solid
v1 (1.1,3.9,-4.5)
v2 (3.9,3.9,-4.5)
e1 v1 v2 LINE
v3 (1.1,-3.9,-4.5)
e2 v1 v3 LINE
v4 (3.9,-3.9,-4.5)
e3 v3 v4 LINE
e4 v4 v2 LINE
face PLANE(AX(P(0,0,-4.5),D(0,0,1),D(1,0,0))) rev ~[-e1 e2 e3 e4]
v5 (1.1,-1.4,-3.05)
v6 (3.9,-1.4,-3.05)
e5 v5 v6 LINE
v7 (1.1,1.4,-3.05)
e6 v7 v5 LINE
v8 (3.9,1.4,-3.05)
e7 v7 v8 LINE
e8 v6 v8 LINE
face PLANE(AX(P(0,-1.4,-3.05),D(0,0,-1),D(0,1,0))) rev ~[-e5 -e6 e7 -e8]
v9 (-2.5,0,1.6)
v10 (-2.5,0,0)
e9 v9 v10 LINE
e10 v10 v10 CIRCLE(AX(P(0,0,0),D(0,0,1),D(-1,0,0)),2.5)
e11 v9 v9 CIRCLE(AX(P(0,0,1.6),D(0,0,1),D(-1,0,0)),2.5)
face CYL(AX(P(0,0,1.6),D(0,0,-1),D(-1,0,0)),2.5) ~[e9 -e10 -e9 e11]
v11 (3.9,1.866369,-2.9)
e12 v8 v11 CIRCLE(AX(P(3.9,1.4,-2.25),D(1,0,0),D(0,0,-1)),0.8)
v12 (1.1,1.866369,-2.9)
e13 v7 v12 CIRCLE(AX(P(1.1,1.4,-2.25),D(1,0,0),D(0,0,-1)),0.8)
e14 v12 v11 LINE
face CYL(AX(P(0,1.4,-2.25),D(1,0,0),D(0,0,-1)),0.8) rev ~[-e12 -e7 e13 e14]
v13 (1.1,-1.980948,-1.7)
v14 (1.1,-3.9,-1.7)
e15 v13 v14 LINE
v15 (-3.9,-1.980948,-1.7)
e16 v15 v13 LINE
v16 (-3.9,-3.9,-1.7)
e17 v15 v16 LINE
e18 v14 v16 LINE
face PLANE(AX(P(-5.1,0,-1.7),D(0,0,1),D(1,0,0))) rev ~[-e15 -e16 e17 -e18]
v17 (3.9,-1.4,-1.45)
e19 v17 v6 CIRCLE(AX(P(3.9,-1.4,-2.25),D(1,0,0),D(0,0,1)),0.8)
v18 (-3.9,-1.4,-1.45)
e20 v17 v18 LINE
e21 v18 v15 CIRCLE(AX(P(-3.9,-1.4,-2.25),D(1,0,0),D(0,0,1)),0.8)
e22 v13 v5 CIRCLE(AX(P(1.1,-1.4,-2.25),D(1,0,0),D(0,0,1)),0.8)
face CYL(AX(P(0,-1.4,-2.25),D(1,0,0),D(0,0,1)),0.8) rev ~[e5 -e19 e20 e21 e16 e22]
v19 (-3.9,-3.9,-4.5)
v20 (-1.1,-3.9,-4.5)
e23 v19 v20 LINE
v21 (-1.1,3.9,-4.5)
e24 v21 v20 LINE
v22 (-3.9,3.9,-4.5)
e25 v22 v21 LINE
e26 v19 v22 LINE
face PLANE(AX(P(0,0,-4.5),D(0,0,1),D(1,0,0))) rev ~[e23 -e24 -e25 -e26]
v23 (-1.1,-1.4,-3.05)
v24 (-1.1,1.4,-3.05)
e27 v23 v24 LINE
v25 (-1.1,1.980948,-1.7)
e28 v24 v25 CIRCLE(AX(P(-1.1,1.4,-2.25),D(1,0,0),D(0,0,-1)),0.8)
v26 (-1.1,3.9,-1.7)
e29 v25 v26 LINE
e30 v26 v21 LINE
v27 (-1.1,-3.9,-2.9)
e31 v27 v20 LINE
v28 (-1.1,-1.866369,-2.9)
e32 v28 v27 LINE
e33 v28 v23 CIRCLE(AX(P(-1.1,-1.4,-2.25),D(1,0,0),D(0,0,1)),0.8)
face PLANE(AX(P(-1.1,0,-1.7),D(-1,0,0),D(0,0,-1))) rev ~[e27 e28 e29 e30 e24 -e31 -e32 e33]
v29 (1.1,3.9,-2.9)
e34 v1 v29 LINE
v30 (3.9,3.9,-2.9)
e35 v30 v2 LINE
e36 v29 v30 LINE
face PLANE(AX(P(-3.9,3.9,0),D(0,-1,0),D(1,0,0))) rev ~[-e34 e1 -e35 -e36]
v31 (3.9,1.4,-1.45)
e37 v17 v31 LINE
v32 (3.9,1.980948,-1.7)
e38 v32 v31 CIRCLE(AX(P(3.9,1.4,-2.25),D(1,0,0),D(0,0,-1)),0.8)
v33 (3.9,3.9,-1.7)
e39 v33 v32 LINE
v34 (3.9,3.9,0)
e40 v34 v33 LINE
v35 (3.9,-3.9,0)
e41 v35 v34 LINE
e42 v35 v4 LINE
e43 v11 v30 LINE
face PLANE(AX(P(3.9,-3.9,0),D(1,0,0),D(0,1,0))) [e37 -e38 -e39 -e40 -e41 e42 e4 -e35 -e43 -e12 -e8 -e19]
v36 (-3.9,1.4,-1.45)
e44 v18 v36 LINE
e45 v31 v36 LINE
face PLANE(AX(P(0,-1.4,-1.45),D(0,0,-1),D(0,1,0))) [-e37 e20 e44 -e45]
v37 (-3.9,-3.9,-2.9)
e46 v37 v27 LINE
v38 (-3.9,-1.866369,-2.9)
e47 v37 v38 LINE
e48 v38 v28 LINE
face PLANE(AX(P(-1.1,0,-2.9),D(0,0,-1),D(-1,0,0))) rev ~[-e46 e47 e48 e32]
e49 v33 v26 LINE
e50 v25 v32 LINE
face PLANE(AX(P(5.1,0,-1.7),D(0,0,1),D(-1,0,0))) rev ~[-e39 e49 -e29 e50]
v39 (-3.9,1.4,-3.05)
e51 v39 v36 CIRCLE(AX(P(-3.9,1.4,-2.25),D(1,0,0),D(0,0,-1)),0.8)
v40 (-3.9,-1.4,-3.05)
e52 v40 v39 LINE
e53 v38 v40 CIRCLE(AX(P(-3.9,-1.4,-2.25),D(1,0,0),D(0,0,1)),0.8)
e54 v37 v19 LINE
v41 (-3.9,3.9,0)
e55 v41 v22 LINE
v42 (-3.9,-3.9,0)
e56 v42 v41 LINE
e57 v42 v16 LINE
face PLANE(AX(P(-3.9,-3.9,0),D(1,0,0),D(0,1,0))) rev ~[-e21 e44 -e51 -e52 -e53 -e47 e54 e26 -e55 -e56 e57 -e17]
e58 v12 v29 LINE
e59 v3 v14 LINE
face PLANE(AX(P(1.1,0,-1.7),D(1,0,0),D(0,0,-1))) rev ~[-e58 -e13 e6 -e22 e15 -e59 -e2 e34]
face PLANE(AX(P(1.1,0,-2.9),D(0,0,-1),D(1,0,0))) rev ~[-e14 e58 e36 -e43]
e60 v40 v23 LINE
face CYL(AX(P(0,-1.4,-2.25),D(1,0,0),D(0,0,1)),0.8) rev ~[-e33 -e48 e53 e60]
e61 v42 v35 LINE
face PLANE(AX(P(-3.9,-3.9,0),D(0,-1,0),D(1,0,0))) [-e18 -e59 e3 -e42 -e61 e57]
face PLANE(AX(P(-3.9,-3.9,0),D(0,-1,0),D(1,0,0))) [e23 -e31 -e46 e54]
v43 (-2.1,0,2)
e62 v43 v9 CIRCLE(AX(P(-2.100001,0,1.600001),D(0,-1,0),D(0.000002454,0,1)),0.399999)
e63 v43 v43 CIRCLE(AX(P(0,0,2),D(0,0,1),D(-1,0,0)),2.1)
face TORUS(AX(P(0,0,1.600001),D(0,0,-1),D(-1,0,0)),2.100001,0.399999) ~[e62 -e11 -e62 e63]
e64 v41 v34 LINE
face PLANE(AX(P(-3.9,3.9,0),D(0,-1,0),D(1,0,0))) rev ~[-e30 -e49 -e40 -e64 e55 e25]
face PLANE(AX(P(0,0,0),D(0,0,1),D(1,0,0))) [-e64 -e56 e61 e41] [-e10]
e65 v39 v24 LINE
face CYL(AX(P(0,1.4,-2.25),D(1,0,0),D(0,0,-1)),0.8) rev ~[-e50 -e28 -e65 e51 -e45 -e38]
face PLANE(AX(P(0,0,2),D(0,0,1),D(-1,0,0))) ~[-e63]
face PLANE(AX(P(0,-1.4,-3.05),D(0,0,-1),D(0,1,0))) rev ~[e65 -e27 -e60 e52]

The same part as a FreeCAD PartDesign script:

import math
import FreeCAD as App
import Part
import Sketcher

V = App.Vector

doc = App.newDocument("Part")
body = doc.addObject("PartDesign::Body", "Body")

sketch1 = doc.addObject("Sketcher::SketchObject", "Sketch")
body.addObject(sketch1)
sketch1.AttachmentSupport = (doc.XZ_Plane, [""])
sketch1.MapMode = "FlatFace"
sketch1.addGeometry([
    Part.LineSegment(V(0, 0, 0), V(0, 2, 0)),
    Part.LineSegment(V(0, 2, 0), V(-2.1, 2, 0)),
    Part.ArcOfCircle(Part.Circle(V(-2.1, 1.6, 0), V(0, 0, 1), 0.4), math.radians(90), math.radians(180)),
    Part.LineSegment(V(-2.5, 1.6, 0), V(-2.5, 0, 0)),
    Part.LineSegment(V(-2.5, 0, 0), V(0, 0, 0)),
], False)
sketch1.addConstraint([
    Sketcher.Constraint("Coincident", 0, 2, 1, 1),
    Sketcher.Constraint("Coincident", 1, 2, 2, 1),
    Sketcher.Constraint("Coincident", 2, 2, 3, 1),
    Sketcher.Constraint("Coincident", 3, 2, 4, 1),
    Sketcher.Constraint("Coincident", 4, 2, 0, 1),
    Sketcher.Constraint("Vertical", 0),
    Sketcher.Constraint("Horizontal", 1),
    Sketcher.Constraint("Vertical", 3),
    Sketcher.Constraint("Horizontal", 4),
    Sketcher.Constraint("Coincident", 4, 2, -1, 1),
    Sketcher.Constraint("Vertical", 2, 3, 1, 2),
    Sketcher.Constraint("Radius", 2, 0.399999),
    Sketcher.Constraint("DistanceY", 0, 1, 0, 2, 2.0),
    Sketcher.Constraint("DistanceX", 1, 2, 1, 1, 2.1),
    Sketcher.Constraint("DistanceY", 3, 2, 3, 1, 1.6),
])
revolution = doc.addObject("PartDesign::Revolution", "Revolution")
body.addObject(revolution)
revolution.Profile = sketch1
revolution.ReferenceAxis = (sketch1, ["V_Axis"])
revolution.Angle = 360

sketch2 = doc.addObject("Sketcher::SketchObject", "Sketch001")
body.addObject(sketch2)
sketch2.AttachmentSupport = (doc.XY_Plane, [""])
sketch2.MapMode = "FlatFace"
sketch2.addGeometry([
    Part.LineSegment(V(-4, 4, 0), V(-4, -4, 0)),
    Part.LineSegment(V(-4, -4, 0), V(4, -4, 0)),
    Part.LineSegment(V(4, -4, 0), V(4, 4, 0)),
    Part.LineSegment(V(4, 4, 0), V(-4, 4, 0)),
], False)
sketch2.addConstraint([
    Sketcher.Constraint("Coincident", 0, 2, 1, 1),
    Sketcher.Constraint("Coincident", 1, 2, 2, 1),
    Sketcher.Constraint("Coincident", 2, 2, 3, 1),
    Sketcher.Constraint("Coincident", 3, 2, 0, 1),
    Sketcher.Constraint("Vertical", 0),
    Sketcher.Constraint("Horizontal", 1),
    Sketcher.Constraint("Vertical", 2),
    Sketcher.Constraint("Horizontal", 3),
    Sketcher.Constraint("Symmetric", 0, 2, 2, 2, -1, 1),
    Sketcher.Constraint("Equal", 3, 0),
    Sketcher.Constraint("DistanceX", 1, 1, 1, 2, 7.8),
])
pad1 = doc.addObject("PartDesign::Pad", "Pad")
body.addObject(pad1)
pad1.Profile = sketch2
pad1.Length = 4.5
pad1.Reversed = True

sketch3 = doc.addObject("Sketcher::SketchObject", "Sketch002")
body.addObject(sketch3)
sketch3.AttachmentSupport = (doc.YZ_Plane, [""])
sketch3.MapMode = "FlatFace"
sketch3.addGeometry([
    Part.ArcOfCircle(Part.Circle(V(-1.4, -2.2, 0), V(0, 0, 1), 0.8), math.radians(90), math.radians(270)),
    Part.LineSegment(V(-1.4, -3, 0), V(1.4, -3, 0)),
    Part.ArcOfCircle(Part.Circle(V(1.4, -2.2, 0), V(0, 0, 1), 0.8), math.radians(-90), math.radians(90)),
    Part.LineSegment(V(1.4, -1.4, 0), V(-1.4, -1.4, 0)),
], False)
sketch3.addConstraint([
    Sketcher.Constraint("Tangent", 0, 2, 1, 1),
    Sketcher.Constraint("Tangent", 1, 2, 2, 1),
    Sketcher.Constraint("Tangent", 2, 2, 3, 1),
    Sketcher.Constraint("Tangent", 3, 2, 0, 1),
    Sketcher.Constraint("Horizontal", 1),
    Sketcher.Constraint("Horizontal", 3),
    Sketcher.Constraint("Radius", 0, 0.8),
    Sketcher.Constraint("DistanceX", 1, 1, 1, 2, 2.8),
    Sketcher.Constraint("DistanceX", 0, 3, -1, 1, 1.4),
    Sketcher.Constraint("DistanceY", 0, 3, -1, 1, 2.25),
])
pocket1 = doc.addObject("PartDesign::Pocket", "Pocket")
body.addObject(pocket1)
pocket1.Profile = sketch3
pocket1.Length = 10
pocket1.Midplane = True

sketch4 = doc.addObject("Sketcher::SketchObject", "Sketch003")
body.addObject(sketch4)
sketch4.AttachmentSupport = (doc.XZ_Plane, [""])
sketch4.MapMode = "FlatFace"
sketch4.addGeometry([
    Part.LineSegment(V(-1.1, -5.9, 0), V(1.1, -5.9, 0)),
    Part.LineSegment(V(1.1, -5.9, 0), V(1.1, -1.7, 0)),
    Part.LineSegment(V(1.1, -1.7, 0), V(-5.1, -1.7, 0)),
    Part.LineSegment(V(-5.1, -1.7, 0), V(-5.1, -2.9, 0)),
    Part.LineSegment(V(-5.1, -2.9, 0), V(-1.1, -2.9, 0)),
    Part.LineSegment(V(-1.1, -2.9, 0), V(-1.1, -5.9, 0)),
], False)
sketch4.addConstraint([
    Sketcher.Constraint("Coincident", 0, 2, 1, 1),
    Sketcher.Constraint("Coincident", 1, 2, 2, 1),
    Sketcher.Constraint("Coincident", 2, 2, 3, 1),
    Sketcher.Constraint("Coincident", 3, 2, 4, 1),
    Sketcher.Constraint("Coincident", 4, 2, 5, 1),
    Sketcher.Constraint("Coincident", 5, 2, 0, 1),
    Sketcher.Constraint("Horizontal", 0),
    Sketcher.Constraint("Vertical", 1),
    Sketcher.Constraint("Horizontal", 2),
    Sketcher.Constraint("Vertical", 3),
    Sketcher.Constraint("Horizontal", 4),
    Sketcher.Constraint("Vertical", 5),
    Sketcher.Constraint("DistanceX", 4, 1, 4, 2, 4.0),
    Sketcher.Constraint("DistanceY", 5, 2, 5, 1, 3.0),
    Sketcher.Constraint("DistanceX", 0, 1, 0, 2, 2.2),
    Sketcher.Constraint("DistanceY", 1, 1, 1, 2, 4.2),
    Sketcher.Constraint("DistanceX", -1, 1, 0, 2, 1.1),
    Sketcher.Constraint("DistanceY", 0, 2, -1, 1, 5.9),
])
pocket2 = doc.addObject("PartDesign::Pocket", "Pocket001")
body.addObject(pocket2)
pocket2.Profile = sketch4
pocket2.Length = 5
pocket2.Reversed = True

sketch5 = doc.addObject("Sketcher::SketchObject", "Sketch004")
body.addObject(sketch5)
sketch5.AttachmentSupport = (doc.XZ_Plane, [""])
sketch5.MapMode = "FlatFace"
sketch5.addGeometry([
    Part.LineSegment(V(-1.1, -1.7, 0), V(-1.1, -6.7, 0)),
    Part.LineSegment(V(-1.1, -6.7, 0), V(1.1, -6.7, 0)),
    Part.LineSegment(V(1.1, -6.7, 0), V(1.1, -2.9, 0)),
    Part.LineSegment(V(1.1, -2.9, 0), V(5.1, -2.9, 0)),
    Part.LineSegment(V(5.1, -2.9, 0), V(5.1, -1.7, 0)),
    Part.LineSegment(V(5.1, -1.7, 0), V(-1.1, -1.7, 0)),
], False)
sketch5.addConstraint([
    Sketcher.Constraint("Coincident", 0, 2, 1, 1),
    Sketcher.Constraint("Coincident", 1, 2, 2, 1),
    Sketcher.Constraint("Coincident", 2, 2, 3, 1),
    Sketcher.Constraint("Coincident", 3, 2, 4, 1),
    Sketcher.Constraint("Coincident", 4, 2, 5, 1),
    Sketcher.Constraint("Coincident", 5, 2, 0, 1),
    Sketcher.Constraint("Vertical", 0),
    Sketcher.Constraint("Horizontal", 1),
    Sketcher.Constraint("Vertical", 2),
    Sketcher.Constraint("Horizontal", 3),
    Sketcher.Constraint("Vertical", 4),
    Sketcher.Constraint("Horizontal", 5),
    Sketcher.Constraint("DistanceX", 3, 1, 3, 2, 4.0),
    Sketcher.Constraint("DistanceY", 0, 2, 0, 1, 5.0),
    Sketcher.Constraint("DistanceX", 1, 1, 1, 2, 2.2),
    Sketcher.Constraint("DistanceY", 2, 1, 2, 2, 3.8),
    Sketcher.Constraint("DistanceX", 0, 2, -1, 1, 1.1),
    Sketcher.Constraint("DistanceY", 0, 2, -1, 1, 6.7),
])
pocket3 = doc.addObject("PartDesign::Pocket", "Pocket002")
body.addObject(pocket3)
pocket3.Profile = sketch5
pocket3.Length = 5

doc.recompute()
